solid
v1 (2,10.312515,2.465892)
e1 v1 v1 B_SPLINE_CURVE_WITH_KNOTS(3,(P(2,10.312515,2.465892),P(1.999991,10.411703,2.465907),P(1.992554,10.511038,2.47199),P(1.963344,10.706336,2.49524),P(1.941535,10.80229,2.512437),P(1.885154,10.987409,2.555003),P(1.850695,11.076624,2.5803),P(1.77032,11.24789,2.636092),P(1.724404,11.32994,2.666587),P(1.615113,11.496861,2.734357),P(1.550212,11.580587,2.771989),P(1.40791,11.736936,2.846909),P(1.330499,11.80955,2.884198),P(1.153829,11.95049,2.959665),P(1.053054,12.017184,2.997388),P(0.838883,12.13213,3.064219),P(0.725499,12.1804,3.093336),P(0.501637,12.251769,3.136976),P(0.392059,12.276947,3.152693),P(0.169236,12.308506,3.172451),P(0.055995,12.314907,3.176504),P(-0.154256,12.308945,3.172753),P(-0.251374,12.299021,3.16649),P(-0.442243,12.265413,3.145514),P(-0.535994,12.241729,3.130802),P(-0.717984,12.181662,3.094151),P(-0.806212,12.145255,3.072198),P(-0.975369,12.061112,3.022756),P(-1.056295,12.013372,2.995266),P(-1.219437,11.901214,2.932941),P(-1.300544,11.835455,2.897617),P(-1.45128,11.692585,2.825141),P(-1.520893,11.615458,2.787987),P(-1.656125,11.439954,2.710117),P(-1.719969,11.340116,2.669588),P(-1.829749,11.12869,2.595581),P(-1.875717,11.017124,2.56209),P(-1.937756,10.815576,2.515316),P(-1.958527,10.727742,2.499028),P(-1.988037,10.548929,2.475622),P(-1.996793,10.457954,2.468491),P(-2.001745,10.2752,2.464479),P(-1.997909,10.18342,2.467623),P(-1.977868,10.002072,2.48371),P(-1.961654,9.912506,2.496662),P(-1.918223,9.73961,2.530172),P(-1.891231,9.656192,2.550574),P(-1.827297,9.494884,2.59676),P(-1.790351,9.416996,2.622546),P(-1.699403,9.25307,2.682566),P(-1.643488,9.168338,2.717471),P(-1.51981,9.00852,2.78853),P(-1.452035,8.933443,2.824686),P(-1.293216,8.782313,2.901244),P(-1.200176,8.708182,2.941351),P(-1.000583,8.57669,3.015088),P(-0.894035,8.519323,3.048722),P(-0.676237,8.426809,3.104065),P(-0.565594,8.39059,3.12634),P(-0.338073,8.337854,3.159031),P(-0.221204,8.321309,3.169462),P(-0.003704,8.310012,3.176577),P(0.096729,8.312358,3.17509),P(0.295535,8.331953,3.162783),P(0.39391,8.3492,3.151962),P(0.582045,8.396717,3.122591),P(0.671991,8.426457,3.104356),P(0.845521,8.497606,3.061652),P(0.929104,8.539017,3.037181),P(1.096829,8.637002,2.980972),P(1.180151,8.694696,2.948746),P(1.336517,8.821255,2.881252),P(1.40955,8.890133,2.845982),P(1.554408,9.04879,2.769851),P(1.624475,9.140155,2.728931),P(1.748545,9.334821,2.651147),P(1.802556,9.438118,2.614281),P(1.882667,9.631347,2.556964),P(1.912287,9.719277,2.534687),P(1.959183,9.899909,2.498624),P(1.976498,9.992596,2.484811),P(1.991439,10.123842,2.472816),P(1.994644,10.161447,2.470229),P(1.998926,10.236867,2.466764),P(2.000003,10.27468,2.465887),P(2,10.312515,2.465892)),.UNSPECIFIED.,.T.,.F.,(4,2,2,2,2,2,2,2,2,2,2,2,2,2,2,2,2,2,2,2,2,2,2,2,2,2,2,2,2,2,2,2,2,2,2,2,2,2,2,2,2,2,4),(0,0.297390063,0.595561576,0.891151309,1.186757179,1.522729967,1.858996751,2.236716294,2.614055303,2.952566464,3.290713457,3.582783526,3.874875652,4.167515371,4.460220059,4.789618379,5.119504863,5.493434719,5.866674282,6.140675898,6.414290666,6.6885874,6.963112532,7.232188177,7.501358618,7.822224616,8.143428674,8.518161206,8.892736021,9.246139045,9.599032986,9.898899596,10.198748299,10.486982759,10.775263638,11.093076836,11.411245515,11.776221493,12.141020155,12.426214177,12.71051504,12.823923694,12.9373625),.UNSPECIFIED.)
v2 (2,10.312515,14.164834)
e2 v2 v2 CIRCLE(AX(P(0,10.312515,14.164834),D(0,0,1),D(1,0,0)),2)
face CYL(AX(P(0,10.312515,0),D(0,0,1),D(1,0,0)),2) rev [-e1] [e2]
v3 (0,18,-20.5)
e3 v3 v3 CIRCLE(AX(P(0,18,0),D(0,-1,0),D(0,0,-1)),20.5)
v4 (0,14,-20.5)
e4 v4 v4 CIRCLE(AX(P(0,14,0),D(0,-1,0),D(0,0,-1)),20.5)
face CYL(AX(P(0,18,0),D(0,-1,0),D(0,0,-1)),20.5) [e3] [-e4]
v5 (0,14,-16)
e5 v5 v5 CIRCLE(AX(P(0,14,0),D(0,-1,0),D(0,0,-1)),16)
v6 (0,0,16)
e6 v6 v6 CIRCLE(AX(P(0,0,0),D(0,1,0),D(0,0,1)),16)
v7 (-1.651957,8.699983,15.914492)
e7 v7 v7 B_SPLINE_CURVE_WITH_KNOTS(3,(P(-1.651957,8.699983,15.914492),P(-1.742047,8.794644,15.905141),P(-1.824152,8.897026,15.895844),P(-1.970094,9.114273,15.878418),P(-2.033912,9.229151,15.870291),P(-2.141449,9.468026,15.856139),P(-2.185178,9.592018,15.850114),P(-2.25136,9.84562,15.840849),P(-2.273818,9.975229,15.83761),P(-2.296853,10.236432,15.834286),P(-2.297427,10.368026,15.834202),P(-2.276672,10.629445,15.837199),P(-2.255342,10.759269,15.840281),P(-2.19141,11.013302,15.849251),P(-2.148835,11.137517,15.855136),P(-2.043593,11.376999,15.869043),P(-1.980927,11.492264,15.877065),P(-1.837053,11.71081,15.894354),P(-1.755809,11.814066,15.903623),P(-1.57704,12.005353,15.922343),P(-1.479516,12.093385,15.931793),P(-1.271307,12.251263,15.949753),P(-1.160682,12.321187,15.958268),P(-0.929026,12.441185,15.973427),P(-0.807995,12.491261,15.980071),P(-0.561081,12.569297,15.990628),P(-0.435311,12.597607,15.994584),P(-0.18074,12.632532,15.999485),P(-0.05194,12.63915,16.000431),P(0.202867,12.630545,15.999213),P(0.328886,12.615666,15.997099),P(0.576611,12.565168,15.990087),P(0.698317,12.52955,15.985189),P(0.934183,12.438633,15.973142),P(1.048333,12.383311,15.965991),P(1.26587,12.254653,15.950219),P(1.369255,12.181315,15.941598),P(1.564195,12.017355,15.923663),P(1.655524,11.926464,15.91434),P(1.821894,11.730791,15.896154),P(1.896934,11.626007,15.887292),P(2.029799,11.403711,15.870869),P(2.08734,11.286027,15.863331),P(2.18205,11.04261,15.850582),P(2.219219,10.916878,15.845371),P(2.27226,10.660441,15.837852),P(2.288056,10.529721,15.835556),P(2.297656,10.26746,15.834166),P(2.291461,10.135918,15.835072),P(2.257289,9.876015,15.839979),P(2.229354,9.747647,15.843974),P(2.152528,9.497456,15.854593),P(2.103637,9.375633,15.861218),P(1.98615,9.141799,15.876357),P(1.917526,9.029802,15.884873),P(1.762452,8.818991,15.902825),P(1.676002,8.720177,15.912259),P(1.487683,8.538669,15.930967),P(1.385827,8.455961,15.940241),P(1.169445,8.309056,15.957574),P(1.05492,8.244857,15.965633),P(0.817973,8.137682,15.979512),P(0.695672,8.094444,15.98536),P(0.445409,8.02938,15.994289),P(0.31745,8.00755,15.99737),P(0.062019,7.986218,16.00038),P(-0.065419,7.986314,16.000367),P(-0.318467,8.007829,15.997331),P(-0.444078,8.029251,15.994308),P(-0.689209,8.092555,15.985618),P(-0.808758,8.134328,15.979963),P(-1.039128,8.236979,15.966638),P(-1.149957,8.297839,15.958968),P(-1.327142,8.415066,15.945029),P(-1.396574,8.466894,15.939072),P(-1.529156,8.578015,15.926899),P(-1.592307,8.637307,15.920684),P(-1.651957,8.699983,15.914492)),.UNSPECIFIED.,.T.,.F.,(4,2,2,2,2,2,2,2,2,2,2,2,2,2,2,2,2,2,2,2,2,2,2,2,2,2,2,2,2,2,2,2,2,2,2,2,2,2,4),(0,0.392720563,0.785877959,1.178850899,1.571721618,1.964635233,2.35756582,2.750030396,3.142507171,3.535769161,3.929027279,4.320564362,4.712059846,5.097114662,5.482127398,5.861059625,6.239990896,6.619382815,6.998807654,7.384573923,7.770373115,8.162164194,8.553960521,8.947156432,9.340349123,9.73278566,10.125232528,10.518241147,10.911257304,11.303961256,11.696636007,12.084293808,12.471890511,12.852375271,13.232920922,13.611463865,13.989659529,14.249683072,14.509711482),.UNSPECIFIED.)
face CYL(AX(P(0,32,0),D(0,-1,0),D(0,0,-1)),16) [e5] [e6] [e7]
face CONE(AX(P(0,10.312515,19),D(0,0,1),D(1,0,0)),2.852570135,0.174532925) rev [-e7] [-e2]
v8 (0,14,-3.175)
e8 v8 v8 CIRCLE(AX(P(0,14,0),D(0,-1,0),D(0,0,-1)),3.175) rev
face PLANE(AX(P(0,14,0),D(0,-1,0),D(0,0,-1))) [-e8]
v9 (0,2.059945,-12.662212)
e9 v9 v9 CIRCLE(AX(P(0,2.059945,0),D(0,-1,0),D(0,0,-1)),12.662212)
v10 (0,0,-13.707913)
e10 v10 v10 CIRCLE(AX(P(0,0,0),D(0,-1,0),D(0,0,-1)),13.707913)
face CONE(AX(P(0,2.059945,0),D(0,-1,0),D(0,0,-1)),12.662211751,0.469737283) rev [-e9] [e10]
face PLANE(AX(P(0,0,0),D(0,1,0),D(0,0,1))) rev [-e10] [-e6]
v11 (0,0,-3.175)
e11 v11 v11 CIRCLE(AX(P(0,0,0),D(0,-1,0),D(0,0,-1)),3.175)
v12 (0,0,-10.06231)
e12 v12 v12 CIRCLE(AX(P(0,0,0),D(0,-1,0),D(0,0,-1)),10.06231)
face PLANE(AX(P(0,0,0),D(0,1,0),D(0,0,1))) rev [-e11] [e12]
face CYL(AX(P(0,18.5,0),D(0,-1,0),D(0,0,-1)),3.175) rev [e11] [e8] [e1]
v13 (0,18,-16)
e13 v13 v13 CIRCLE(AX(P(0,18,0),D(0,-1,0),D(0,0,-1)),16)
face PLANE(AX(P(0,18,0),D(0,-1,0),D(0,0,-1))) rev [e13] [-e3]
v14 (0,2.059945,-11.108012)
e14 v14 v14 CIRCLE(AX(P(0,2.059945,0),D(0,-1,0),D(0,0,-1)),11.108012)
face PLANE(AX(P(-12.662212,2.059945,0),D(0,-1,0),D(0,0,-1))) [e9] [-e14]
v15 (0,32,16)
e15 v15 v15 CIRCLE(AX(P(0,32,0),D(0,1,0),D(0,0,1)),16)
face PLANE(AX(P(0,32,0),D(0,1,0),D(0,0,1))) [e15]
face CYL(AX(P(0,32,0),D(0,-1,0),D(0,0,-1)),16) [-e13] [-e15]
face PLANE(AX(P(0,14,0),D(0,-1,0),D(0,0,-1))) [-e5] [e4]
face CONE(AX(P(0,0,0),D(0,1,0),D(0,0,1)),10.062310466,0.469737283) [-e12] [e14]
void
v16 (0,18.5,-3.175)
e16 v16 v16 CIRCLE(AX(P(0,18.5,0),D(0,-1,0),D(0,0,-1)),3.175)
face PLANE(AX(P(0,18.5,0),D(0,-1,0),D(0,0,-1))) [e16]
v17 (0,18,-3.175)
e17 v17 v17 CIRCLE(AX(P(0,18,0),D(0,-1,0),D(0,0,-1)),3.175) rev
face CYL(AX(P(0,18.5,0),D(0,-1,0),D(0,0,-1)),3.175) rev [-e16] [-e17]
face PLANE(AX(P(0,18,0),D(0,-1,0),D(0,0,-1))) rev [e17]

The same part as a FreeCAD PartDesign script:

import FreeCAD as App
import Part
import Sketcher

V = App.Vector
Q = App.Units.Quantity


def faces_at(feature, points):
    """Names of the faces that lie closest to the given points."""
    faces = feature.Shape.Faces
    near = lambda p: min(range(len(faces)), key=lambda i: faces[i].distToShape(Part.Vertex(*p))[0])
    return sorted({f"Face{near(p) + 1}" for p in points})

doc = App.newDocument("Part")
body = doc.addObject("PartDesign::Body", "Body")

# Sketch on XZ plane
sketch1 = body.newObject("Sketcher::SketchObject", "Sketch")
sketch1.AttachmentSupport = (doc.getObject("XZ_Plane"), [""])
sketch1.MapMode = "FlatFace"
sketch1.addGeometry(Part.Circle(V(0, 0, 0), V(0, 0, 1), 16), False)
sketch1.addConstraint(Sketcher.Constraint("Coincident", 0, 3, -1, 1))
sketch1.addConstraint(Sketcher.Constraint("Diameter", 0, Q("32 mm")))
pad1 = body.newObject("PartDesign::Pad", "Pad")
pad1.Profile = sketch1
pad1.Length = 32
pad1.Reversed = True

# Sketch on XZ plane
sketch2 = body.newObject("Sketcher::SketchObject", "Sketch001")
sketch2.AttachmentSupport = (doc.getObject("XZ_Plane"), [""])
sketch2.MapMode = "FlatFace"
sketch2.addGeometry(Part.Circle(V(0, 0, 0), V(0, 0, 1), 3.175), False)
sketch2.addConstraint(Sketcher.Constraint("Coincident", 0, 3, -1, 1))
sketch2.addConstraint(Sketcher.Constraint("Diameter", 0, Q("6.35 mm")))
pocket1 = body.newObject("PartDesign::Pocket", "Pocket")
pocket1.Profile = sketch2
pocket1.Length = 18.5

# Sketch on XY plane
sketch3 = body.newObject("Sketcher::SketchObject", "Sketch002")
sketch3.AttachmentSupport = (doc.getObject("XY_Plane"), [""])
sketch3.MapMode = "FlatFace"
sketch3.addGeometry(Part.LineSegment(V(-12.662212, 2.059945, 0), V(-13.707913, 0, 0)), False)
sketch3.addGeometry(Part.LineSegment(V(-13.707913, 0, 0), V(-10.06231, 0, 0)), False)
sketch3.addGeometry(Part.LineSegment(V(-10.06231, 0, 0), V(-11.108012, 2.059945, 0)), False)
sketch3.addGeometry(Part.LineSegment(V(-11.108012, 2.059945, 0), V(-12.662212, 2.059945, 0)), False)
sketch3.addConstraint(Sketcher.Constraint("Coincident", 0, 2, 1, 1))
sketch3.addConstraint(Sketcher.Constraint("Coincident", 1, 2, 2, 1))
sketch3.addConstraint(Sketcher.Constraint("Coincident", 2, 2, 3, 1))
sketch3.addConstraint(Sketcher.Constraint("Coincident", 3, 2, 0, 1))
sketch3.addConstraint(Sketcher.Constraint("Horizontal", 1))
sketch3.addConstraint(Sketcher.Constraint("Horizontal", 3))
sketch3.addConstraint(Sketcher.Constraint("PointOnObject", 0, 2, -1))
sketch3.addConstraint(Sketcher.Constraint("Equal", 0, 2))
sketch3.addConstraint(Sketcher.Constraint("DistanceX", 3, 2, 3, 1, Q("1.5542 mm")))
sketch3.addConstraint(Sketcher.Constraint("DistanceX", 2, 2, 1, 2, Q("1.045701 mm")))
sketch3.addConstraint(Sketcher.Constraint("DistanceX", 1, 2, -1, 1, Q("10.06231 mm")))
sketch3.addConstraint(Sketcher.Constraint("Distance", 0, Q("2.310166 mm")))

# Sketch on XZ plane
sketch4 = body.newObject("Sketcher::SketchObject", "Sketch003")
sketch4.AttachmentSupport = (doc.getObject("XZ_Plane"), [""])
sketch4.MapMode = "FlatFace"
sketch4.addGeometry(Part.Circle(V(0, 0, 0), V(0, 0, 1), 11.89137), False)
sketch4.addConstraint(Sketcher.Constraint("Coincident", 0, 3, -1, 1))
sketch4.addConstraint(Sketcher.Constraint("Diameter", 0, Q("23.782739 mm")))
doc.recompute()

subtractivepipe = body.newObject("PartDesign::SubtractivePipe", "SubtractivePipe")
subtractivepipe.Profile = sketch3
subtractivepipe.Spine = (sketch4, ["Edge1"])

# Sketch on XZ plane
sketch5 = body.newObject("Sketcher::SketchObject", "Sketch004")
sketch5.AttachmentSupport = (doc.getObject("XZ_Plane"), [""])
sketch5.MapMode = "FlatFace"
sketch5.AttachmentOffset = App.Placement(V(0, 0, -14), App.Rotation())
sketch5.addGeometry(Part.Circle(V(0, 0, 0), V(0, 0, 1), 20.5), False)
sketch5.addConstraint(Sketcher.Constraint("Coincident", 0, 3, -1, 1))
sketch5.addConstraint(Sketcher.Constraint("Diameter", 0, Q("41 mm")))
pad2 = body.newObject("PartDesign::Pad", "Pad001")
pad2.Profile = sketch5
pad2.Length = 4
pad2.Reversed = True

# Sketch on XY plane
sketch6 = body.newObject("Sketcher::SketchObject", "Sketch005")
sketch6.AttachmentSupport = (doc.getObject("XY_Plane"), [""])
sketch6.MapMode = "FlatFace"
sketch6.AttachmentOffset = App.Placement(V(0, 0, 20), App.Rotation())
sketch6.addGeometry(Part.Circle(V(0, 10.312515, 0), V(0, 0, 1), 2), False)
sketch6.addConstraint(Sketcher.Constraint("PointOnObject", 0, 3, -2))
sketch6.addConstraint(Sketcher.Constraint("Diameter", 0, Q("4 mm")))
sketch6.addConstraint(Sketcher.Constraint("DistanceY", -1, 1, 0, 3, Q("10.312515 mm")))
pocket2 = body.newObject("PartDesign::Pocket", "Pocket001")
pocket2.Profile = sketch6
pocket2.Length = 20
body2 = doc.addObject("PartDesign::Body", "Body001")

# Sketch on XY plane
sketch7 = body2.newObject("Sketcher::SketchObject", "Sketch006")
sketch7.AttachmentSupport = (doc.getObject("XY_Plane001"), [""])
sketch7.MapMode = "FlatFace"
sketch7.AttachmentOffset = App.Placement(V(0, 0, 19), App.Rotation())
sketch7.addGeometry(Part.Circle(V(0, 10.312515, 0), V(0, 0, 1), 2.85257), False)
sketch7.addConstraint(Sketcher.Constraint("PointOnObject", 0, 3, -2))
sketch7.addConstraint(Sketcher.Constraint("Diameter", 0, Q("5.70514 mm")))
sketch7.addConstraint(Sketcher.Constraint("DistanceY", -1, 1, 0, 3, Q("10.312515 mm")))
pad3 = body2.newObject("PartDesign::Pad", "Pad002")
pad3.Profile = sketch7
pad3.Length = 5
pad3.Reversed = True
doc.recompute()

datumplane = body2.newObject("PartDesign::Plane", "DatumPlane")
datumplane.AttachmentSupport = (doc.getObject("XY_Plane001"), [""])
datumplane.MapMode = "FlatFace"
datumplane.AttachmentOffset = App.Placement(V(0, 0, 19), App.Rotation())
draft = body2.newObject("PartDesign::Draft", "Draft")
draft.Base = (pad3, faces_at(pad3, [(-2.853, 10.313, 16.5)]))
draft.NeutralPlane = (datumplane, [""])
draft.Angle = 10
draft.Reversed = True
doc.recompute()

boolean = body.newObject("PartDesign::Boolean", "Boolean")
boolean.Type = "Cut"
boolean.addObjects([body2])

doc.recompute()
